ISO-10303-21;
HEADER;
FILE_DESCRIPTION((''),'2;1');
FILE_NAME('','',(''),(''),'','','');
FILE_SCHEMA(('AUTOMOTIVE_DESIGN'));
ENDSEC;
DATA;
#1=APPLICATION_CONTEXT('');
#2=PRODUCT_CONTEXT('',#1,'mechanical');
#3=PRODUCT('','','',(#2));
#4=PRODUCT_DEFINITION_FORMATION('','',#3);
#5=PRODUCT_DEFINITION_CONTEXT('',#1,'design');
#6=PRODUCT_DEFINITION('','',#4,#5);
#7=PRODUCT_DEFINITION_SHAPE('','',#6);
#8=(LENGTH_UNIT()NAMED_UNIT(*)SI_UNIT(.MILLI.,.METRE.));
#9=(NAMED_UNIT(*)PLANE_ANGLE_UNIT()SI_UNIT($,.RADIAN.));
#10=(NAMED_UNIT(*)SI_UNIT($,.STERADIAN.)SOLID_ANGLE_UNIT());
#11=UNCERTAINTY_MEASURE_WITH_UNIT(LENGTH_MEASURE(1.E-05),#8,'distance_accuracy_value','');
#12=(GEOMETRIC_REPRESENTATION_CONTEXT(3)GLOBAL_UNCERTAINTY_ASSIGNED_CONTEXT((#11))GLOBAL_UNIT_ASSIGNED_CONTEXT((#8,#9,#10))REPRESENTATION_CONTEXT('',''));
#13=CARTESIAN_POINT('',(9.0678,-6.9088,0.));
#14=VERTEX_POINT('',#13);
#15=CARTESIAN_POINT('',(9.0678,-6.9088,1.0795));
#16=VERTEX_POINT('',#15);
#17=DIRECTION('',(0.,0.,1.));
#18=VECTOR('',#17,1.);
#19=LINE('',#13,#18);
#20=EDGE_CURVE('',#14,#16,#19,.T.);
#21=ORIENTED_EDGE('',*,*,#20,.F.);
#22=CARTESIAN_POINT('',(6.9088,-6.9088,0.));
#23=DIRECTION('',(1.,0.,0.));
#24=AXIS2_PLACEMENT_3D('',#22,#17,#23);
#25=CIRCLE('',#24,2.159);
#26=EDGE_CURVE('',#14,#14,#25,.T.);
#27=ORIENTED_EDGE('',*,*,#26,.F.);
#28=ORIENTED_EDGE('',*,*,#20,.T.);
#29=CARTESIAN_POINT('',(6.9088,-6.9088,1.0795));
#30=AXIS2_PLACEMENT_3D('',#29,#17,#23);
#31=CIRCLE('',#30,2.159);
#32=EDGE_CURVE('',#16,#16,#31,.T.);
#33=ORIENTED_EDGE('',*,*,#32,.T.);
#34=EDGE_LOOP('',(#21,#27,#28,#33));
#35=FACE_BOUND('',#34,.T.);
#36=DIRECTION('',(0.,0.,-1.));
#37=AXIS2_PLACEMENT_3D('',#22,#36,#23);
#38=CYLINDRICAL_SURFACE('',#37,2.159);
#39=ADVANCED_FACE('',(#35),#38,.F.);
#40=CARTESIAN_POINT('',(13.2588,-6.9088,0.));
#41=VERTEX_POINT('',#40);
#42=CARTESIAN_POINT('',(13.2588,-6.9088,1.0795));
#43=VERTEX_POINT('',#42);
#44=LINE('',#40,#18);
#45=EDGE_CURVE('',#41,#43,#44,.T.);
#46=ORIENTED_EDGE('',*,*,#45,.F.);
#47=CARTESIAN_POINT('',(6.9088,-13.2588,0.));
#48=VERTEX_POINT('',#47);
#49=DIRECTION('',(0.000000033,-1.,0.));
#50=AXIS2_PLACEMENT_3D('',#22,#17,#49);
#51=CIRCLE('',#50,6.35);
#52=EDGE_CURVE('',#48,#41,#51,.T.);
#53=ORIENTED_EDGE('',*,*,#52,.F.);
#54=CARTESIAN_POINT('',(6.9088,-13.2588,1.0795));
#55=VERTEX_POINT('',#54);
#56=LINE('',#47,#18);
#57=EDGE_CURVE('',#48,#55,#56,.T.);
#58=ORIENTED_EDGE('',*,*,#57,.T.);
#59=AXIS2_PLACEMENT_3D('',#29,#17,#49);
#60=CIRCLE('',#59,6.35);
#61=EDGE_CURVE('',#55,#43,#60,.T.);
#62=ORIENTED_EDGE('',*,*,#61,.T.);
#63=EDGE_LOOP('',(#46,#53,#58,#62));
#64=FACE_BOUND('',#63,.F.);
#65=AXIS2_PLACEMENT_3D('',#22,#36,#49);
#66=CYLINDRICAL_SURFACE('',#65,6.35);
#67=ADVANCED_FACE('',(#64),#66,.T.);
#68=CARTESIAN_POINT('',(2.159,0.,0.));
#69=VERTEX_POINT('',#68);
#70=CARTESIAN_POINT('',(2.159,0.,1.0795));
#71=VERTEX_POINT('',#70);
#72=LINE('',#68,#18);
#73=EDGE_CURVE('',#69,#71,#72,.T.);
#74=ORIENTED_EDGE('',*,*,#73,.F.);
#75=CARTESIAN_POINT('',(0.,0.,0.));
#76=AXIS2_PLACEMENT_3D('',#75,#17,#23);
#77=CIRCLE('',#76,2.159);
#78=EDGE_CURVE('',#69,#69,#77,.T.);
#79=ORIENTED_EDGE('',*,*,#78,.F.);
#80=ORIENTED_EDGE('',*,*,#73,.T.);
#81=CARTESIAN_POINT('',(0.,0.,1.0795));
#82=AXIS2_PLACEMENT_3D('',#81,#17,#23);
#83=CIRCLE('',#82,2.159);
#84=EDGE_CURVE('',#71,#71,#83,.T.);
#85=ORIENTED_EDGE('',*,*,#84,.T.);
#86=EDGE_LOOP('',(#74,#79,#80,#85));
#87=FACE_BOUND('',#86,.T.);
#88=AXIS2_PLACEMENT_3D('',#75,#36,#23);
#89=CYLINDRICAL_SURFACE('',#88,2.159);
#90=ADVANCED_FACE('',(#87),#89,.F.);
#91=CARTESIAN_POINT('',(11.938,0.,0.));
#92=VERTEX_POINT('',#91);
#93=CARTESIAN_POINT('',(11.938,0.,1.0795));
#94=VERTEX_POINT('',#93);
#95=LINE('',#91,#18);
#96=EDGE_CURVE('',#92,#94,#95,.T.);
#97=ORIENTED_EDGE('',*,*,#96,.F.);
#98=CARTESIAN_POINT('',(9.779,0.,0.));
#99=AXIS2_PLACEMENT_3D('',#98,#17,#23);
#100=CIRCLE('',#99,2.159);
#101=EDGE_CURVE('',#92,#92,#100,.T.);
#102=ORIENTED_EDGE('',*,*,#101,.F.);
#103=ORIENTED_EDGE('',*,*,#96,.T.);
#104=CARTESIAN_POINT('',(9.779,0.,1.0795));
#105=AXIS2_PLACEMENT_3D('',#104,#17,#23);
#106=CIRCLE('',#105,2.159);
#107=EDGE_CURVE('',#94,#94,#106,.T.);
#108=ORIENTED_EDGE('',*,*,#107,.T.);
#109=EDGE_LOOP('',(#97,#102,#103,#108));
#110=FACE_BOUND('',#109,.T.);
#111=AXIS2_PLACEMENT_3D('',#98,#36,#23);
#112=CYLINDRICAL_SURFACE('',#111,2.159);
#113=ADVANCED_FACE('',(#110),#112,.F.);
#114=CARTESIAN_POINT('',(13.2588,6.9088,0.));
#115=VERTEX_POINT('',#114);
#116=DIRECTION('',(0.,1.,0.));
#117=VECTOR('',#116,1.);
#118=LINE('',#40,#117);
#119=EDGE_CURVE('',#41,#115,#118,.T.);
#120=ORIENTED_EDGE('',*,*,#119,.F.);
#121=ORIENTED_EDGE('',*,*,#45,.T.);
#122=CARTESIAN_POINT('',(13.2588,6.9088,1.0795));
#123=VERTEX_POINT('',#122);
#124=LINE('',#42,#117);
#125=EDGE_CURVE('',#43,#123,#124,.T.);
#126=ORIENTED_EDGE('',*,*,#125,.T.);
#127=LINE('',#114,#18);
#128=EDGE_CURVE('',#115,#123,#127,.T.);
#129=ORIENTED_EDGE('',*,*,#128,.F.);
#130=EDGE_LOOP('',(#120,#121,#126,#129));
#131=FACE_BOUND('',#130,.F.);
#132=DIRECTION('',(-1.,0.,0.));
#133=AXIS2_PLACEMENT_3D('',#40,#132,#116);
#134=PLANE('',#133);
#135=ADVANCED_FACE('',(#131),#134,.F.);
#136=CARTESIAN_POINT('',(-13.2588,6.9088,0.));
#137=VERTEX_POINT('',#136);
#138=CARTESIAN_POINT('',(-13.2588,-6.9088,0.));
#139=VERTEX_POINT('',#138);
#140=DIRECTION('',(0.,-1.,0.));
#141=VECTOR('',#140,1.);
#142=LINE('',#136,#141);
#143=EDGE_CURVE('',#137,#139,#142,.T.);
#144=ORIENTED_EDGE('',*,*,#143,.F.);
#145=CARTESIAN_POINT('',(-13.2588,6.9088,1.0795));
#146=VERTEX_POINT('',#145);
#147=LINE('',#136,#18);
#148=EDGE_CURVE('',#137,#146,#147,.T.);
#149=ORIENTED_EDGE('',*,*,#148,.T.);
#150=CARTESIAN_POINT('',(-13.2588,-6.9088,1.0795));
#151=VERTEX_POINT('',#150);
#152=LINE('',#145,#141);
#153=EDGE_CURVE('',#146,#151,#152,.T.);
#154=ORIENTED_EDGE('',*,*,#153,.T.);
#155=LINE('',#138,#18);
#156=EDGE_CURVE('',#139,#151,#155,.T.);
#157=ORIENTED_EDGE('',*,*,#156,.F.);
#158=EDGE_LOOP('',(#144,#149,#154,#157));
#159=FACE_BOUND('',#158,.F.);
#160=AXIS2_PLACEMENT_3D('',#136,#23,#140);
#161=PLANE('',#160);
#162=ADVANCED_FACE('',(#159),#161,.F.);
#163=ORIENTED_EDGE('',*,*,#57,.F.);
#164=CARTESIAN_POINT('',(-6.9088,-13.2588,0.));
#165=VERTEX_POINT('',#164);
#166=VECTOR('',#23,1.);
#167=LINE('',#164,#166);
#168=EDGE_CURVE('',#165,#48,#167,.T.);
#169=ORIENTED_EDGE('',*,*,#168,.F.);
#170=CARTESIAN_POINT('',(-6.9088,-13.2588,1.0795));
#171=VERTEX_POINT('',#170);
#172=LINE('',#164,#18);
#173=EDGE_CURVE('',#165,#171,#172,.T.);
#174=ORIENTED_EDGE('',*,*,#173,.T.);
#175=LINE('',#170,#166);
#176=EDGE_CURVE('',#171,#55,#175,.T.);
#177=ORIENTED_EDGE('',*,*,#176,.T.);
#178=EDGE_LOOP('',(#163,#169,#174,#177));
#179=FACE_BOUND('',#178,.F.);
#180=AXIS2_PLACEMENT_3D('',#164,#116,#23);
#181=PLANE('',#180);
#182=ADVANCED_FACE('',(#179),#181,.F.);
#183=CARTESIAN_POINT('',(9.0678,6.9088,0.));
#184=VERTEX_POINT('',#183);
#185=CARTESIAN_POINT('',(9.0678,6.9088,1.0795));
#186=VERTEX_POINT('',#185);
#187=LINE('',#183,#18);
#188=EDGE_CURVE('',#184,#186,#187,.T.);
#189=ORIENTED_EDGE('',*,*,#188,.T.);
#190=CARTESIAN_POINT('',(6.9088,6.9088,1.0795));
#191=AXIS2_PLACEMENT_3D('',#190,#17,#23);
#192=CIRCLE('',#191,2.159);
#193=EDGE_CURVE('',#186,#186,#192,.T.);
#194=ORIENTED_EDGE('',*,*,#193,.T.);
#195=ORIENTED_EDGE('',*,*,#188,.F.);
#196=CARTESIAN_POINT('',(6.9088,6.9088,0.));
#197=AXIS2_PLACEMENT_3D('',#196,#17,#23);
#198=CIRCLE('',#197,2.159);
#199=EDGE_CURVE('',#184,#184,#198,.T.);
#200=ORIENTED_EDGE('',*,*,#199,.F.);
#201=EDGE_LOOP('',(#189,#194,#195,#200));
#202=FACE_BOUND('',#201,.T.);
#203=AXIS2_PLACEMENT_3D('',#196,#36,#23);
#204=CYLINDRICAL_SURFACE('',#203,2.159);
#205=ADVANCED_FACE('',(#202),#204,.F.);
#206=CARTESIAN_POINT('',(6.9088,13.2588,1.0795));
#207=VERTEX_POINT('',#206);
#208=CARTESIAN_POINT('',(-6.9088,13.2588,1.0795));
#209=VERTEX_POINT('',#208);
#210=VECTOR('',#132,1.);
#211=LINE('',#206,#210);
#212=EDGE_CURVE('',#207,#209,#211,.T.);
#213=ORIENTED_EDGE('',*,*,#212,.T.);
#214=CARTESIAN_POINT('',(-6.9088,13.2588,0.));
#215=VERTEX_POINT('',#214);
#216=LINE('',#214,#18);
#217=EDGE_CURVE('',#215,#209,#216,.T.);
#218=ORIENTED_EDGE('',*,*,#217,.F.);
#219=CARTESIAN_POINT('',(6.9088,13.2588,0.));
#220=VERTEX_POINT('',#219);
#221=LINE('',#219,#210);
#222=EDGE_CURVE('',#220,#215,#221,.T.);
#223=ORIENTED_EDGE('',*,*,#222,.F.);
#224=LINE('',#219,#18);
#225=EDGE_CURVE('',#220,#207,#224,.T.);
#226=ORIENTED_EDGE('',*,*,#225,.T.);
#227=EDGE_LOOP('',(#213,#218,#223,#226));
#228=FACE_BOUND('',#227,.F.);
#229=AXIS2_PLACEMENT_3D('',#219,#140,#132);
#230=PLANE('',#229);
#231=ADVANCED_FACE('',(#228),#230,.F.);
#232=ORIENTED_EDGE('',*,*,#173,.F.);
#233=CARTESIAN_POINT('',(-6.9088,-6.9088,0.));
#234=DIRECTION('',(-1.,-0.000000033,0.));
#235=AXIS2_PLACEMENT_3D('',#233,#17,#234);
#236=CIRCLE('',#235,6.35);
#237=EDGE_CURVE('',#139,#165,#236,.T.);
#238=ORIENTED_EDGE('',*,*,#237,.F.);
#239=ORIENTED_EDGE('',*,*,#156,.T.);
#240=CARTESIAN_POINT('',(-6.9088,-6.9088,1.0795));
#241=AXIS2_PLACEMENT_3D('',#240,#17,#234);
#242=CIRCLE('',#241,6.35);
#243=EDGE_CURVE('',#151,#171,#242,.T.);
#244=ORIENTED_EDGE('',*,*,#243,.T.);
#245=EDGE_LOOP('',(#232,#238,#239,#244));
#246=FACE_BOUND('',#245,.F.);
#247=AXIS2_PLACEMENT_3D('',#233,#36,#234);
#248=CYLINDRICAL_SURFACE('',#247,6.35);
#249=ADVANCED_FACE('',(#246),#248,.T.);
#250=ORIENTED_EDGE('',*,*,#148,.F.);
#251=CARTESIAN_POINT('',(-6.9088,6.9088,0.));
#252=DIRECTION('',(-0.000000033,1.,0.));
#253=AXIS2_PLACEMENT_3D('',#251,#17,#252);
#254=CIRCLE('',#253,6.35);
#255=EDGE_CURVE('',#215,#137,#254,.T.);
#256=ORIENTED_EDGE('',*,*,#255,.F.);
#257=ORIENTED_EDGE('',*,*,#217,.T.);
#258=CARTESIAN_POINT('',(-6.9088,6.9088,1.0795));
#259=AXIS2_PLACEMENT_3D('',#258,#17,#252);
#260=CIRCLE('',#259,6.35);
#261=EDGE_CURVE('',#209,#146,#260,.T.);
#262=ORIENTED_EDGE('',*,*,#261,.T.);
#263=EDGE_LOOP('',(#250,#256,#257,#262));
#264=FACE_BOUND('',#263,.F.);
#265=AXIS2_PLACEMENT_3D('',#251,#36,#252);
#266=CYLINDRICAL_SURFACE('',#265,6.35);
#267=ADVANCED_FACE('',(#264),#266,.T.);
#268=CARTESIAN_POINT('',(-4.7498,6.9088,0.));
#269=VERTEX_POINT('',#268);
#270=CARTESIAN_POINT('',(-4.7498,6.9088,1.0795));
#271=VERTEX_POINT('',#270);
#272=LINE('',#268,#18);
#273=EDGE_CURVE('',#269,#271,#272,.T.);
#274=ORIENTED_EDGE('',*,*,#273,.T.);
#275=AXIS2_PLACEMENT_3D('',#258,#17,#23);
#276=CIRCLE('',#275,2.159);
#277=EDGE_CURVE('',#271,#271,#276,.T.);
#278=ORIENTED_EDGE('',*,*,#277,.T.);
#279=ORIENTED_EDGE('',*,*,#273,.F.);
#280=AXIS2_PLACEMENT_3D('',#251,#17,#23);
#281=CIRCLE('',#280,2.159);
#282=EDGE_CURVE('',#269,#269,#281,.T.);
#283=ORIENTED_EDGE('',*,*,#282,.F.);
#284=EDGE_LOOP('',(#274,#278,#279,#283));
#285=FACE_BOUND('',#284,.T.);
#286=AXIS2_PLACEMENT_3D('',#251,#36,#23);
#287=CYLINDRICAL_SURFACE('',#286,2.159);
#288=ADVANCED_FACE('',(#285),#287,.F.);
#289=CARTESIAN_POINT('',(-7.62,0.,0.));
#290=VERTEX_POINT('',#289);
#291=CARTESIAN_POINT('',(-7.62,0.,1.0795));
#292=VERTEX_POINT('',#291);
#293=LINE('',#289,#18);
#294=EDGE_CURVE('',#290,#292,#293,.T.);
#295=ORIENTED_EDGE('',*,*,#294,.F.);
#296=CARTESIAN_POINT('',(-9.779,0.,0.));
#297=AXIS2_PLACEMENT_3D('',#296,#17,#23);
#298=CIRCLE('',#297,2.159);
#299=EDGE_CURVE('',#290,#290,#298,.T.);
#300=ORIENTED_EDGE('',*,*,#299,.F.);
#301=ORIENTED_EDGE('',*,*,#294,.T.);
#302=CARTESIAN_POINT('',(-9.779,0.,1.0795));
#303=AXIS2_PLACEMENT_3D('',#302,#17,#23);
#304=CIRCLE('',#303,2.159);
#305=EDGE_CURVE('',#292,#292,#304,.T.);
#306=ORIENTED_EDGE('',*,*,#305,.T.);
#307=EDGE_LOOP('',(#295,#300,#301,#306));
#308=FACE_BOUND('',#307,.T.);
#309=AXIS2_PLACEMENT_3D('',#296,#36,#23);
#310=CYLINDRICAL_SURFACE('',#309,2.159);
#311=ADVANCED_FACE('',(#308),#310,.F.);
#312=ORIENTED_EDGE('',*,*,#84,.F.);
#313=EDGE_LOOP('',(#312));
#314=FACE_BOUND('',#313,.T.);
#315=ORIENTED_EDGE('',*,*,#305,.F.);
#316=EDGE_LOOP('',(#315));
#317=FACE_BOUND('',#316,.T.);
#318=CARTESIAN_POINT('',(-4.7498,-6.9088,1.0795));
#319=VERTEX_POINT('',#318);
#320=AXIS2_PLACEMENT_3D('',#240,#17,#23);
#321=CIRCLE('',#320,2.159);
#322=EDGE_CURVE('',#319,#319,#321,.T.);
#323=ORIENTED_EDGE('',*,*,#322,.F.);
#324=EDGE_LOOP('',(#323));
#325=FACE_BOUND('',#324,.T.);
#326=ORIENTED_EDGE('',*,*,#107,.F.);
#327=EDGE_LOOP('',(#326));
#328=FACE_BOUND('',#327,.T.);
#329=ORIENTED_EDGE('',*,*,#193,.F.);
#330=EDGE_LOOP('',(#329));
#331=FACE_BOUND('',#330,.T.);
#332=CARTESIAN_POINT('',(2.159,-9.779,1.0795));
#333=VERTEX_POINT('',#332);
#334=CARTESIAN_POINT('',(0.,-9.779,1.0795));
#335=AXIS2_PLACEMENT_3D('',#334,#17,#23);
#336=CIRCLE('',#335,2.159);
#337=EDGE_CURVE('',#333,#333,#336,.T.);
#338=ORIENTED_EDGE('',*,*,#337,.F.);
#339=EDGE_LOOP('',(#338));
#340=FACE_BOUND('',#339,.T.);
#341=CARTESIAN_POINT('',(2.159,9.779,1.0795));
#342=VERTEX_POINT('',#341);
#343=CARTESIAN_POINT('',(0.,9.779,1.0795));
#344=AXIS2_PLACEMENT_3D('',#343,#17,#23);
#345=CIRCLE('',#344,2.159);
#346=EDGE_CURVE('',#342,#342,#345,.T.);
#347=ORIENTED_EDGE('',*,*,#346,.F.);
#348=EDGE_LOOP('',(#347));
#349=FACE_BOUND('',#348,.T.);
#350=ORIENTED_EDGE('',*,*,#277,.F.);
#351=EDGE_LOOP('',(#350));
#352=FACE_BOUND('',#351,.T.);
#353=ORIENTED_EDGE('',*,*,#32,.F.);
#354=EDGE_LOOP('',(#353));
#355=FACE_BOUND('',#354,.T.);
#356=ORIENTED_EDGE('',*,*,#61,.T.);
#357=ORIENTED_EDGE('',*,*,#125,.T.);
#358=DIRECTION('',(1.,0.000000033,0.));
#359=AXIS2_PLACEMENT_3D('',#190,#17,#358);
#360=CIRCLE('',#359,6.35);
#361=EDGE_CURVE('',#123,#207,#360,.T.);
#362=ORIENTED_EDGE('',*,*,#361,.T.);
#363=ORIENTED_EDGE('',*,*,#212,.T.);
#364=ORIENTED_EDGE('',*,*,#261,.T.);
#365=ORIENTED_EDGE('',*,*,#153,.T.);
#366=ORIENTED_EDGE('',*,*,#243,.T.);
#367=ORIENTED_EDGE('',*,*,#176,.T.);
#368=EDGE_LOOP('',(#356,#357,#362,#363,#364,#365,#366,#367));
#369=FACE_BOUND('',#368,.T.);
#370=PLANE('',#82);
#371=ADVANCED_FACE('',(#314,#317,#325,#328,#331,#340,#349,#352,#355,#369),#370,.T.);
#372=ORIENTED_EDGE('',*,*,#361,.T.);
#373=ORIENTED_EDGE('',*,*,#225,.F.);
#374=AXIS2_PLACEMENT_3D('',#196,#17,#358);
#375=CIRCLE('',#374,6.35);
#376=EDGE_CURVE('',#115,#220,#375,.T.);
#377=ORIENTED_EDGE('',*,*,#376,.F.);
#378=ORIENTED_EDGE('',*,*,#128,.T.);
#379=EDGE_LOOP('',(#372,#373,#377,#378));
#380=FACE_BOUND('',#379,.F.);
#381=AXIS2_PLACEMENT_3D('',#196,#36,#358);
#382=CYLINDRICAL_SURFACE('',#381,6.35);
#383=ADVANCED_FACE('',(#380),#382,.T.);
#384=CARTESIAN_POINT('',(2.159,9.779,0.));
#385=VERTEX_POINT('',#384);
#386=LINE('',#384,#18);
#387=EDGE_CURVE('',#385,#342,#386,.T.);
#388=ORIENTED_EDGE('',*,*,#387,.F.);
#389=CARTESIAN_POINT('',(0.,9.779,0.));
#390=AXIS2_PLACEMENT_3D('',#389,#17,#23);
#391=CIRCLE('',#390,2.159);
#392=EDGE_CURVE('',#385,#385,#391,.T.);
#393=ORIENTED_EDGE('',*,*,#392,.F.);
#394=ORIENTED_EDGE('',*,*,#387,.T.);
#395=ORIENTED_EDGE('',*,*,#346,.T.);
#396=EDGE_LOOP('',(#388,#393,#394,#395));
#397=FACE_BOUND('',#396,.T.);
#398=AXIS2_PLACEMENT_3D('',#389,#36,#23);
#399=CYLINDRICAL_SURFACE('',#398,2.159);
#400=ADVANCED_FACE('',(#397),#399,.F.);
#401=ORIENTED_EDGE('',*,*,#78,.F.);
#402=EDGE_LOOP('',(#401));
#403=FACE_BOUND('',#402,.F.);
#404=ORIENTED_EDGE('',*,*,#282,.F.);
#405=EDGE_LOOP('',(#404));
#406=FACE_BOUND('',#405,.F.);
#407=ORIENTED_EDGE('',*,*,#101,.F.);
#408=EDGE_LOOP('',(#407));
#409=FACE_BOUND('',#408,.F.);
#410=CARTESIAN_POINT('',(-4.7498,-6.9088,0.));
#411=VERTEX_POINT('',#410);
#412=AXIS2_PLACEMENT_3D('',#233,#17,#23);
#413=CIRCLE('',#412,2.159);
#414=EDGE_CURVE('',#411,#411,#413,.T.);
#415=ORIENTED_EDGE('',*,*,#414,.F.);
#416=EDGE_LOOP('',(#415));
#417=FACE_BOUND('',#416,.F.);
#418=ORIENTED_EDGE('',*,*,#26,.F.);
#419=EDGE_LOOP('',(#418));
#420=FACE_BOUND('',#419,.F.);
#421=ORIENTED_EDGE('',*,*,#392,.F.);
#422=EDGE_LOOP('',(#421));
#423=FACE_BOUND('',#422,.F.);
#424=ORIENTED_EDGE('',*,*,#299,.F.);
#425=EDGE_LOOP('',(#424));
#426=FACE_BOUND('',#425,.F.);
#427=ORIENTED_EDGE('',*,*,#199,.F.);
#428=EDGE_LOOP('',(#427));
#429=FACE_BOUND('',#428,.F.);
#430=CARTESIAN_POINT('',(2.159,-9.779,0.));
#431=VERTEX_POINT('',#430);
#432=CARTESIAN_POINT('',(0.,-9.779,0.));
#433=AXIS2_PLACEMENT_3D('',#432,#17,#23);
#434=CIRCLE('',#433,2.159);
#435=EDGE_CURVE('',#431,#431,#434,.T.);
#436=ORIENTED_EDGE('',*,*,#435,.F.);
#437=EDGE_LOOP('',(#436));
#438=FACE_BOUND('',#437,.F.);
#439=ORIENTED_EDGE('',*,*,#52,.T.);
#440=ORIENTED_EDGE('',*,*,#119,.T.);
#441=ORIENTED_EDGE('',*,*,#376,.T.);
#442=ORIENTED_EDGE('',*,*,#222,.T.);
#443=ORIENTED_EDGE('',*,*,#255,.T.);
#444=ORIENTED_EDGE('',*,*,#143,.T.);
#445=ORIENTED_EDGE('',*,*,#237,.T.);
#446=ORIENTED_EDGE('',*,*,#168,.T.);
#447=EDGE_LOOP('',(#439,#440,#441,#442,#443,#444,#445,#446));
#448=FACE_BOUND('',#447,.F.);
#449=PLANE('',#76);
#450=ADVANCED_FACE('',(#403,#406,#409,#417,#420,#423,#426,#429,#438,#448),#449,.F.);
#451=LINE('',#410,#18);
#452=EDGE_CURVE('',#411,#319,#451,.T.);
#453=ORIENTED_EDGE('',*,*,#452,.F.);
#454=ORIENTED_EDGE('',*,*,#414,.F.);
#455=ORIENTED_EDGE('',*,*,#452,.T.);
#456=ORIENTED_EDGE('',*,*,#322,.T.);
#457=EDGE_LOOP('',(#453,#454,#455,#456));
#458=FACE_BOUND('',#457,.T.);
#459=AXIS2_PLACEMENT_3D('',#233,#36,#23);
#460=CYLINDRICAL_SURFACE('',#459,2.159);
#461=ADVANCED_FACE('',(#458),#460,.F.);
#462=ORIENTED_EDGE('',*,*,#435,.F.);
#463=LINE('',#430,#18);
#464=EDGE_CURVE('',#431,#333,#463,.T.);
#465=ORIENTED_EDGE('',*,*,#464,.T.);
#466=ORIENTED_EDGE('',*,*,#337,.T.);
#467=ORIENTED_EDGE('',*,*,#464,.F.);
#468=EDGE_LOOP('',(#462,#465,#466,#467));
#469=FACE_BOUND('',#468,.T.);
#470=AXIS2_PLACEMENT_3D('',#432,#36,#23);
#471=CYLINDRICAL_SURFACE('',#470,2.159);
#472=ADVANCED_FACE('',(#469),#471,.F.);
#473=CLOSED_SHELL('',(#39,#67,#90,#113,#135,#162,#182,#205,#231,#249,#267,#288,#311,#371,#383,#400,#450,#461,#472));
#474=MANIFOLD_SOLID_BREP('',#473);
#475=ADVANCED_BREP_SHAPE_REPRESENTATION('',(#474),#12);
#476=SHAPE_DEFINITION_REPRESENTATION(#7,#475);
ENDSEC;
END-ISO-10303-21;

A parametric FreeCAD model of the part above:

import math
import FreeCAD as App
import Part
import Sketcher
from FreeCAD import Vector
Q = App.Units.Quantity

doc = App.newDocument("Part")
body = doc.addObject("PartDesign::Body", "Body")

sketch1 = body.newObject("Sketcher::SketchObject", "Sketch")
sketch1.AttachmentSupport = (doc.getObject("XY_Plane"), [""])
sketch1.MapMode = "FlatFace"
sketch1.addGeometry([
    Part.ArcOfCircle(Part.Circle(Vector(6.9, 6.9, 0), Vector(0, 0, 1), 6.4), math.radians(0), math.radians(90)),
    Part.LineSegment(Vector(6.9, 13.3, 0), Vector(-6.9, 13.3, 0)),
    Part.ArcOfCircle(Part.Circle(Vector(-6.9, 6.9, 0), Vector(0, 0, 1), 6.4), math.radians(90), math.radians(180)),
    Part.LineSegment(Vector(-13.3, 6.9, 0), Vector(-13.3, -6.9, 0)),
    Part.ArcOfCircle(Part.Circle(Vector(-6.9, -6.9, 0), Vector(0, 0, 1), 6.4), math.radians(-180), math.radians(-90)),
    Part.LineSegment(Vector(-6.9, -13.3, 0), Vector(6.9, -13.3, 0)),
    Part.ArcOfCircle(Part.Circle(Vector(6.9, -6.9, 0), Vector(0, 0, 1), 6.4), math.radians(-90), math.radians(0)),
    Part.LineSegment(Vector(13.3, -6.9, 0), Vector(13.3, 6.9, 0)),
    Part.Circle(Vector(-6.9, -6.9, 0), Vector(0, 0, 1), 2.2),
    Part.Circle(Vector(0, -9.8, 0), Vector(0, 0, 1), 2.2),
    Part.Circle(Vector(-9.8, 0, 0), Vector(0, 0, 1), 2.2),
    Part.Circle(Vector(0, 0, 0), Vector(0, 0, 1), 2.2),
    Part.Circle(Vector(6.9, -6.9, 0), Vector(0, 0, 1), 2.2),
    Part.Circle(Vector(9.8, 0, 0), Vector(0, 0, 1), 2.2),
    Part.Circle(Vector(-6.9, 6.9, 0), Vector(0, 0, 1), 2.2),
    Part.Circle(Vector(0, 9.8, 0), Vector(0, 0, 1), 2.2),
    Part.Circle(Vector(6.9, 6.9, 0), Vector(0, 0, 1), 2.2),
], False)
sketch1.addConstraint([
    Sketcher.Constraint("Tangent", 0, 2, 1, 1),
    Sketcher.Constraint("Tangent", 1, 2, 2, 1),
    Sketcher.Constraint("Tangent", 2, 2, 3, 1),
    Sketcher.Constraint("Tangent", 3, 2, 4, 1),
    Sketcher.Constraint("Tangent", 4, 2, 5, 1),
    Sketcher.Constraint("Tangent", 5, 2, 6, 1),
    Sketcher.Constraint("Tangent", 6, 2, 7, 1),
    Sketcher.Constraint("Tangent", 7, 2, 0, 1),
    Sketcher.Constraint("Horizontal", 1),
    Sketcher.Constraint("Vertical", 3),
    Sketcher.Constraint("Horizontal", 5),
    Sketcher.Constraint("Vertical", 7),
    Sketcher.Constraint("Coincident", 11, 3, -1, 1),
    Sketcher.Constraint("Coincident", 8, 3, 4, 3),
    Sketcher.Constraint("Coincident", 12, 3, 6, 3),
    Sketcher.Constraint("Coincident", 14, 3, 2, 3),
    Sketcher.Constraint("Coincident", 16, 3, 0, 3),
    Sketcher.Constraint("Equal", 0, 2),
    Sketcher.Constraint("Equal", 2, 4),
    Sketcher.Constraint("Equal", 4, 6),
    Sketcher.Constraint("Equal", 8, 9),
    Sketcher.Constraint("Equal", 9, 10),
    Sketcher.Constraint("Equal", 10, 11),
    Sketcher.Constraint("Equal", 11, 12),
    Sketcher.Constraint("Equal", 12, 13),
    Sketcher.Constraint("Equal", 13, 14),
    Sketcher.Constraint("Equal", 14, 15),
    Sketcher.Constraint("Equal", 15, 16),
    Sketcher.Constraint("Symmetric", 0, 3, 4, 3, -1, 1),
    Sketcher.Constraint("Symmetric", 10, 3, 13, 3, -1, 1),
    Sketcher.Constraint("Symmetric", 9, 3, 15, 3, -1, 1),
    Sketcher.Constraint("PointOnObject", 9, 3, -2),
    Sketcher.Constraint("PointOnObject", 10, 3, -1),
    Sketcher.Constraint("Equal", 5, 3),
    Sketcher.Constraint("Diameter", 8, Q("0.17 in")),
    Sketcher.Constraint("Radius", 0, Q("0.25 in")),
    Sketcher.Constraint("DistanceX", 1, 2, 1, 1, Q("0.544 in")),
    Sketcher.Constraint("DistanceY", 9, 3, -1, 1, Q("0.385 in")),
    Sketcher.Constraint("DistanceX", 10, 3, -1, 1, Q("0.385 in")),
])
pad1 = body.newObject("PartDesign::Pad", "Pad")
pad1.Profile = sketch1
pad1.Length = Q("0.0425 in")

doc.recompute()
